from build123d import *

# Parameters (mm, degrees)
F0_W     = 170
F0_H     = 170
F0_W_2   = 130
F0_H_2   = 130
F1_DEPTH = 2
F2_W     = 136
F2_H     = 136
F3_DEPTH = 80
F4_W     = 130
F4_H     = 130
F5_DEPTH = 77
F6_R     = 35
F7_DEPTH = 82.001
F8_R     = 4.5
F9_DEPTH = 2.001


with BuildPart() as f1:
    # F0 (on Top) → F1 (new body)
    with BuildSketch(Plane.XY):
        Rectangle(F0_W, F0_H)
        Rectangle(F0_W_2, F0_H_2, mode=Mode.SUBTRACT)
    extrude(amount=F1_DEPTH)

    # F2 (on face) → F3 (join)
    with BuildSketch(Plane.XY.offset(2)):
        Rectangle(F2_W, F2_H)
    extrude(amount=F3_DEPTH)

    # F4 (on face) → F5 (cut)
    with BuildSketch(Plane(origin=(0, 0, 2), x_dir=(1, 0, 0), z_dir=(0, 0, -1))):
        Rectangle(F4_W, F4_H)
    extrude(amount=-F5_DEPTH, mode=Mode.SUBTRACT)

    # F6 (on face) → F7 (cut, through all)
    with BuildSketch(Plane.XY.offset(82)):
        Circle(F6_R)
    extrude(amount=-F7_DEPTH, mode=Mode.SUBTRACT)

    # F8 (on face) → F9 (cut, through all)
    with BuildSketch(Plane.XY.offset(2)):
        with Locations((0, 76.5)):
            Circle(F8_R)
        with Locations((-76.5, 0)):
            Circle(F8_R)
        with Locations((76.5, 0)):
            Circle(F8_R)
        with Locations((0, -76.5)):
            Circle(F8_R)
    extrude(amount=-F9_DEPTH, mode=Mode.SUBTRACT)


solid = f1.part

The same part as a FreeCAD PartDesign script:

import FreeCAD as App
import Part
import Sketcher

V = App.Vector

doc = App.newDocument("Part")
params = doc.addObject("Spreadsheet::Sheet", "Params")
for row, (alias, value) in enumerate([
    ("sketch1_width", "170 mm"),
    ("sketch1_width2", "130 mm"),
    ("pad1_length", "2 mm"),
    ("sketch2_width", "136 mm"),
    ("pad2_length", "80 mm"),
    ("sketch3_width", "130 mm"),
    ("pocket1_length", "77 mm"),
    ("sketch4_diameter", "70 mm"),
    ("sketch5_diameter", "9 mm"),
], start=1):
    params.set(f"A{row}", alias)
    params.set(f"B{row}", "=" + value)
    params.setAlias(f"B{row}", alias)

body = doc.addObject("PartDesign::Body", "Body")

sketch1 = body.newObject("Sketcher::SketchObject", "Sketch")
sketch1.AttachmentSupport = (doc.getObject("XY_Plane"), [""])
sketch1.MapMode = "FlatFace"
sketch1.addGeometry([
    Part.LineSegment(V(-85, 85, 0), V(-85, -85, 0)),
    Part.LineSegment(V(-85, -85, 0), V(85, -85, 0)),
    Part.LineSegment(V(85, -85, 0), V(85, 85, 0)),
    Part.LineSegment(V(85, 85, 0), V(-85, 85, 0)),
    Part.LineSegment(V(65, -65, 0), V(-65, -65, 0)),
    Part.LineSegment(V(-65, -65, 0), V(-65, 65, 0)),
    Part.LineSegment(V(-65, 65, 0), V(65, 65, 0)),
    Part.LineSegment(V(65, 65, 0), V(65, -65, 0)),
], False)
sketch1.addConstraint([
    Sketcher.Constraint("Coincident", 0, 2, 1, 1),
    Sketcher.Constraint("Coincident", 1, 2, 2, 1),
    Sketcher.Constraint("Coincident", 2, 2, 3, 1),
    Sketcher.Constraint("Coincident", 3, 2, 0, 1),
    Sketcher.Constraint("Coincident", 4, 2, 5, 1),
    Sketcher.Constraint("Coincident", 5, 2, 6, 1),
    Sketcher.Constraint("Coincident", 6, 2, 7, 1),
    Sketcher.Constraint("Coincident", 7, 2, 4, 1),
    Sketcher.Constraint("Vertical", 0),
    Sketcher.Constraint("Horizontal", 1),
    Sketcher.Constraint("Vertical", 2),
    Sketcher.Constraint("Horizontal", 3),
    Sketcher.Constraint("Horizontal", 4),
    Sketcher.Constraint("Vertical", 5),
    Sketcher.Constraint("Horizontal", 6),
    Sketcher.Constraint("Vertical", 7),
    Sketcher.Constraint("Symmetric", 0, 2, 2, 2, -1, 1),
    Sketcher.Constraint("Symmetric", 4, 2, 6, 2, -1, 1),
    Sketcher.Constraint("Equal", 3, 0),
    Sketcher.Constraint("Equal", 6, 5),
    Sketcher.Constraint("DistanceX", 1, 1, 1, 2, 170.0),
    Sketcher.Constraint("DistanceX", 4, 2, 4, 1, 130.0),
])
sketch1.setExpression("Constraints[20]", "Params.sketch1_width")
sketch1.setExpression("Constraints[21]", "Params.sketch1_width2")
pad1 = body.newObject("PartDesign::Pad", "Pad")
pad1.Profile = sketch1
pad1.setExpression("Length", "Params.pad1_length")

sketch2 = body.newObject("Sketcher::SketchObject", "Sketch001")
sketch2.AttachmentSupport = (doc.getObject("XY_Plane"), [""])
sketch2.MapMode = "FlatFace"
sketch2.AttachmentOffset = App.Placement(V(0, 0, 2), App.Rotation())
sketch2.addGeometry([
    Part.LineSegment(V(-68, 68, 0), V(-68, -68, 0)),
    Part.LineSegment(V(-68, -68, 0), V(68, -68, 0)),
    Part.LineSegment(V(68, -68, 0), V(68, 68, 0)),
    Part.LineSegment(V(68, 68, 0), V(-68, 68, 0)),
], False)
sketch2.addConstraint([
    Sketcher.Constraint("Coincident", 0, 2, 1, 1),
    Sketcher.Constraint("Coincident", 1, 2, 2, 1),
    Sketcher.Constraint("Coincident", 2, 2, 3, 1),
    Sketcher.Constraint("Coincident", 3, 2, 0, 1),
    Sketcher.Constraint("Vertical", 0),
    Sketcher.Constraint("Horizontal", 1),
    Sketcher.Constraint("Vertical", 2),
    Sketcher.Constraint("Horizontal", 3),
    Sketcher.Constraint("Symmetric", 0, 2, 2, 2, -1, 1),
    Sketcher.Constraint("Equal", 3, 0),
    Sketcher.Constraint("DistanceX", 1, 1, 1, 2, 136.0),
])
sketch2.setExpression("Constraints[10]", "Params.sketch2_width")
pad2 = body.newObject("PartDesign::Pad", "Pad001")
pad2.Profile = sketch2
pad2.setExpression("Length", "Params.pad2_length")

sketch3 = body.newObject("Sketcher::SketchObject", "Sketch002")
sketch3.AttachmentSupport = (doc.getObject("XY_Plane"), [""])
sketch3.MapMode = "FlatFace"
sketch3.AttachmentOffset = App.Placement(V(0, 0, 2), App.Rotation())
sketch3.addGeometry([
    Part.LineSegment(V(-65, -65, 0), V(-65, 65, 0)),
    Part.LineSegment(V(-65, 65, 0), V(65, 65, 0)),
    Part.LineSegment(V(65, 65, 0), V(65, -65, 0)),
    Part.LineSegment(V(65, -65, 0), V(-65, -65, 0)),
], False)
sketch3.addConstraint([
    Sketcher.Constraint("Coincident", 0, 2, 1, 1),
    Sketcher.Constraint("Coincident", 1, 2, 2, 1),
    Sketcher.Constraint("Coincident", 2, 2, 3, 1),
    Sketcher.Constraint("Coincident", 3, 2, 0, 1),
    Sketcher.Constraint("Vertical", 0),
    Sketcher.Constraint("Horizontal", 1),
    Sketcher.Constraint("Vertical", 2),
    Sketcher.Constraint("Horizontal", 3),
    Sketcher.Constraint("Symmetric", 0, 2, 2, 2, -1, 1),
    Sketcher.Constraint("Equal", 3, 0),
    Sketcher.Constraint("DistanceX", 1, 1, 1, 2, 130.0),
])
sketch3.setExpression("Constraints[10]", "Params.sketch3_width")
pocket1 = body.newObject("PartDesign::Pocket", "Pocket")
pocket1.Profile = sketch3
pocket1.setExpression("Length", "Params.pocket1_length")
pocket1.Reversed = True

sketch4 = body.newObject("Sketcher::SketchObject", "Sketch003")
sketch4.AttachmentSupport = (doc.getObject("XY_Plane"), [""])
sketch4.MapMode = "FlatFace"
sketch4.AttachmentOffset = App.Placement(V(0, 0, 82), App.Rotation())
sketch4.addGeometry(Part.Circle(V(0, 0, 0), V(0, 0, 1), 35), False)
sketch4.addConstraint([
    Sketcher.Constraint("Coincident", 0, 3, -1, 1),
    Sketcher.Constraint("Diameter", 0, 70.0),
])
sketch4.setExpression("Constraints[1]", "Params.sketch4_diameter")
pocket2 = body.newObject("PartDesign::Pocket", "Pocket001")
pocket2.Profile = sketch4
pocket2.Type = "ThroughAll"

sketch5 = body.newObject("Sketcher::SketchObject", "Sketch004")
sketch5.AttachmentSupport = (doc.getObject("XY_Plane"), [""])
sketch5.MapMode = "FlatFace"
sketch5.AttachmentOffset = App.Placement(V(0, 0, 2), App.Rotation())
sketch5.addGeometry([
    Part.Circle(V(0, 76.5, 0), V(0, 0, 1), 4.5),
    Part.Circle(V(-76.5, 0, 0), V(0, 0, 1), 4.5),
    Part.Circle(V(76.5, 0, 0), V(0, 0, 1), 4.5),
    Part.Circle(V(0, -76.5, 0), V(0, 0, 1), 4.5),
], False)
sketch5.addConstraint([
    Sketcher.Constraint("Equal", 0, 1),
    Sketcher.Constraint("Equal", 1, 2),
    Sketcher.Constraint("Equal", 2, 3),
    Sketcher.Constraint("Symmetric", 1, 3, 2, 3, -1, 1),
    Sketcher.Constraint("Symmetric", 0, 3, 3, 3, -1, 1),
    Sketcher.Constraint("PointOnObject", 0, 3, -2),
    Sketcher.Constraint("PointOnObject", 1, 3, -1),
    Sketcher.Constraint("Diameter", 0, 9.0),
    Sketcher.Constraint("DistanceX", 1, 3, 2, 3, 153.0),
    Sketcher.Constraint("DistanceY", 3, 3, 0, 3, 153.0),
])
sketch5.setExpression("Constraints[7]", "Params.sketch5_diameter")
pocket3 = body.newObject("PartDesign::Pocket", "Pocket002")
pocket3.Profile = sketch5
pocket3.Type = "ThroughAll"

doc.recompute()
